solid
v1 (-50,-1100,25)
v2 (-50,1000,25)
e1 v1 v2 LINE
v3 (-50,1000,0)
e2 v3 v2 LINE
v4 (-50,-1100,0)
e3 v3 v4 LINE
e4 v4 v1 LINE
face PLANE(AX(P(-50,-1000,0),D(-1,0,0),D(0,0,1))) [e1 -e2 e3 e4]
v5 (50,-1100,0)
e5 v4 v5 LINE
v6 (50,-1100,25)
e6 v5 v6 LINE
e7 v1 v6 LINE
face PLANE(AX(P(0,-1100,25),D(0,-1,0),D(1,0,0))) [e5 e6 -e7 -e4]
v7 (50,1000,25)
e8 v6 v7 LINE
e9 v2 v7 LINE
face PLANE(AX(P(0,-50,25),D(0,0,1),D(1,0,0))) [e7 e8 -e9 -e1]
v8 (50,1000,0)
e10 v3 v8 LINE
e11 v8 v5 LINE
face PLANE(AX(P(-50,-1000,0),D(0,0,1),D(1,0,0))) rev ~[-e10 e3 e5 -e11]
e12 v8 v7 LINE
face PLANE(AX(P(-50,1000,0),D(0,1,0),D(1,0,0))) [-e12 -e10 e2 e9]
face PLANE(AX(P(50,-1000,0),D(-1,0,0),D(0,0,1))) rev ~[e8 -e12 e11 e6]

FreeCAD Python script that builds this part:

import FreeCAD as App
import Part
import Sketcher
Q = App.Units.Quantity

doc = App.newDocument("Part")
body = doc.addObject("PartDesign::Body", "Body")

# Sketch on XY plane
sketch1 = body.newObject("Sketcher::SketchObject", "Sketch")
sketch1.AttachmentSupport = (doc.getObject("XY_Plane"), [""])
sketch1.MapMode = "FlatFace"
sketch1.addGeometry([
    Part.LineSegment(App.Vector(-50, 1000, 0), App.Vector(-50, -1000, 0)),
    Part.LineSegment(App.Vector(-50, -1000, 0), App.Vector(50, -1000, 0)),
    Part.LineSegment(App.Vector(50, -1000, 0), App.Vector(50, 1000, 0)),
    Part.LineSegment(App.Vector(50, 1000, 0), App.Vector(-50, 1000, 0)),
], False)
sketch1.addConstraint([
    Sketcher.Constraint("Coincident", 0, 2, 1, 1),
    Sketcher.Constraint("Coincident", 1, 2, 2, 1),
    Sketcher.Constraint("Coincident", 2, 2, 3, 1),
    Sketcher.Constraint("Coincident", 3, 2, 0, 1),
    Sketcher.Constraint("Vertical", 0),
    Sketcher.Constraint("Horizontal", 1),
    Sketcher.Constraint("Vertical", 2),
    Sketcher.Constraint("Horizontal", 3),
    Sketcher.Constraint("Symmetric", 0, 2, 2, 2, -1, 1),
    Sketcher.Constraint("DistanceX", 1, 1, 1, 2, Q("100 mm")),
    Sketcher.Constraint("DistanceY", 0, 2, 0, 1, Q("2000 mm")),
])
pad1 = body.newObject("PartDesign::Pad", "Pad")
pad1.Profile = sketch1
pad1.Length = 50

# Sketch on XZ plane
sketch2 = body.newObject("Sketcher::SketchObject", "Sketch001")
sketch2.AttachmentSupport = (doc.getObject("XZ_Plane"), [""])
sketch2.MapMode = "FlatFace"
sketch2.AttachmentOffset = App.Placement(App.Vector(0, 0, 1000), App.Rotation())
sketch2.addGeometry([
    Part.LineSegment(App.Vector(-50, 50, 0), App.Vector(-50, 0, 0)),
    Part.LineSegment(App.Vector(-50, 0, 0), App.Vector(50, 0, 0)),
    Part.LineSegment(App.Vector(50, 0, 0), App.Vector(50, 50, 0)),
    Part.LineSegment(App.Vector(50, 50, 0), App.Vector(-50, 50, 0)),
], False)
sketch2.addConstraint([
    Sketcher.Constraint("Coincident", 0, 2, 1, 1),
    Sketcher.Constraint("Coincident", 1, 2, 2, 1),
    Sketcher.Constraint("Coincident", 2, 2, 3, 1),
    Sketcher.Constraint("Coincident", 3, 2, 0, 1),
    Sketcher.Constraint("Vertical", 0),
    Sketcher.Constraint("Horizontal", 1),
    Sketcher.Constraint("Vertical", 2),
    Sketcher.Constraint("Horizontal", 3),
    Sketcher.Constraint("Symmetric", 0, 2, 1, 2, -1, 1),
    Sketcher.Constraint("DistanceX", 1, 1, 1, 2, Q("100 mm")),
    Sketcher.Constraint("DistanceY", 0, 2, 0, 1, Q("50 mm")),
])
pad2 = body.newObject("PartDesign::Pad", "Pad001")
pad2.Profile = sketch2
pad2.Length = 100

# Sketch on XY plane
sketch3 = body.newObject("Sketcher::SketchObject", "Sketch002")
sketch3.AttachmentSupport = (doc.getObject("XY_Plane"), [""])
sketch3.MapMode = "FlatFace"
sketch3.AttachmentOffset = App.Placement(App.Vector(0, 0, 50), App.Rotation())
sketch3.addGeometry([
    Part.LineSegment(App.Vector(-50, 1000, 0), App.Vector(-50, -1100, 0)),
    Part.LineSegment(App.Vector(-50, -1100, 0), App.Vector(50, -1100, 0)),
    Part.LineSegment(App.Vector(50, -1100, 0), App.Vector(50, 1000, 0)),
    Part.LineSegment(App.Vector(50, 1000, 0), App.Vector(-50, 1000, 0)),
], False)
sketch3.addConstraint([
    Sketcher.Constraint("Coincident", 0, 2, 1, 1),
    Sketcher.Constraint("Coincident", 1, 2, 2, 1),
    Sketcher.Constraint("Coincident", 2, 2, 3, 1),
    Sketcher.Constraint("Coincident", 3, 2, 0, 1),
    Sketcher.Constraint("Vertical", 0),
    Sketcher.Constraint("Horizontal", 1),
    Sketcher.Constraint("Vertical", 2),
    Sketcher.Constraint("Horizontal", 3),
    Sketcher.Constraint("DistanceX", 1, 1, 1, 2, Q("100 mm")),
    Sketcher.Constraint("DistanceY", 0, 2, 0, 1, Q("2100 mm")),
    Sketcher.Constraint("DistanceX", 0, 2, -1, 1, Q("50 mm")),
    Sketcher.Constraint("DistanceY", 0, 2, -1, 1, Q("1100 mm")),
])
pocket1 = body.newObject("PartDesign::Pocket", "Pocket")
pocket1.Profile = sketch3
pocket1.Length = 25

doc.recompute()
